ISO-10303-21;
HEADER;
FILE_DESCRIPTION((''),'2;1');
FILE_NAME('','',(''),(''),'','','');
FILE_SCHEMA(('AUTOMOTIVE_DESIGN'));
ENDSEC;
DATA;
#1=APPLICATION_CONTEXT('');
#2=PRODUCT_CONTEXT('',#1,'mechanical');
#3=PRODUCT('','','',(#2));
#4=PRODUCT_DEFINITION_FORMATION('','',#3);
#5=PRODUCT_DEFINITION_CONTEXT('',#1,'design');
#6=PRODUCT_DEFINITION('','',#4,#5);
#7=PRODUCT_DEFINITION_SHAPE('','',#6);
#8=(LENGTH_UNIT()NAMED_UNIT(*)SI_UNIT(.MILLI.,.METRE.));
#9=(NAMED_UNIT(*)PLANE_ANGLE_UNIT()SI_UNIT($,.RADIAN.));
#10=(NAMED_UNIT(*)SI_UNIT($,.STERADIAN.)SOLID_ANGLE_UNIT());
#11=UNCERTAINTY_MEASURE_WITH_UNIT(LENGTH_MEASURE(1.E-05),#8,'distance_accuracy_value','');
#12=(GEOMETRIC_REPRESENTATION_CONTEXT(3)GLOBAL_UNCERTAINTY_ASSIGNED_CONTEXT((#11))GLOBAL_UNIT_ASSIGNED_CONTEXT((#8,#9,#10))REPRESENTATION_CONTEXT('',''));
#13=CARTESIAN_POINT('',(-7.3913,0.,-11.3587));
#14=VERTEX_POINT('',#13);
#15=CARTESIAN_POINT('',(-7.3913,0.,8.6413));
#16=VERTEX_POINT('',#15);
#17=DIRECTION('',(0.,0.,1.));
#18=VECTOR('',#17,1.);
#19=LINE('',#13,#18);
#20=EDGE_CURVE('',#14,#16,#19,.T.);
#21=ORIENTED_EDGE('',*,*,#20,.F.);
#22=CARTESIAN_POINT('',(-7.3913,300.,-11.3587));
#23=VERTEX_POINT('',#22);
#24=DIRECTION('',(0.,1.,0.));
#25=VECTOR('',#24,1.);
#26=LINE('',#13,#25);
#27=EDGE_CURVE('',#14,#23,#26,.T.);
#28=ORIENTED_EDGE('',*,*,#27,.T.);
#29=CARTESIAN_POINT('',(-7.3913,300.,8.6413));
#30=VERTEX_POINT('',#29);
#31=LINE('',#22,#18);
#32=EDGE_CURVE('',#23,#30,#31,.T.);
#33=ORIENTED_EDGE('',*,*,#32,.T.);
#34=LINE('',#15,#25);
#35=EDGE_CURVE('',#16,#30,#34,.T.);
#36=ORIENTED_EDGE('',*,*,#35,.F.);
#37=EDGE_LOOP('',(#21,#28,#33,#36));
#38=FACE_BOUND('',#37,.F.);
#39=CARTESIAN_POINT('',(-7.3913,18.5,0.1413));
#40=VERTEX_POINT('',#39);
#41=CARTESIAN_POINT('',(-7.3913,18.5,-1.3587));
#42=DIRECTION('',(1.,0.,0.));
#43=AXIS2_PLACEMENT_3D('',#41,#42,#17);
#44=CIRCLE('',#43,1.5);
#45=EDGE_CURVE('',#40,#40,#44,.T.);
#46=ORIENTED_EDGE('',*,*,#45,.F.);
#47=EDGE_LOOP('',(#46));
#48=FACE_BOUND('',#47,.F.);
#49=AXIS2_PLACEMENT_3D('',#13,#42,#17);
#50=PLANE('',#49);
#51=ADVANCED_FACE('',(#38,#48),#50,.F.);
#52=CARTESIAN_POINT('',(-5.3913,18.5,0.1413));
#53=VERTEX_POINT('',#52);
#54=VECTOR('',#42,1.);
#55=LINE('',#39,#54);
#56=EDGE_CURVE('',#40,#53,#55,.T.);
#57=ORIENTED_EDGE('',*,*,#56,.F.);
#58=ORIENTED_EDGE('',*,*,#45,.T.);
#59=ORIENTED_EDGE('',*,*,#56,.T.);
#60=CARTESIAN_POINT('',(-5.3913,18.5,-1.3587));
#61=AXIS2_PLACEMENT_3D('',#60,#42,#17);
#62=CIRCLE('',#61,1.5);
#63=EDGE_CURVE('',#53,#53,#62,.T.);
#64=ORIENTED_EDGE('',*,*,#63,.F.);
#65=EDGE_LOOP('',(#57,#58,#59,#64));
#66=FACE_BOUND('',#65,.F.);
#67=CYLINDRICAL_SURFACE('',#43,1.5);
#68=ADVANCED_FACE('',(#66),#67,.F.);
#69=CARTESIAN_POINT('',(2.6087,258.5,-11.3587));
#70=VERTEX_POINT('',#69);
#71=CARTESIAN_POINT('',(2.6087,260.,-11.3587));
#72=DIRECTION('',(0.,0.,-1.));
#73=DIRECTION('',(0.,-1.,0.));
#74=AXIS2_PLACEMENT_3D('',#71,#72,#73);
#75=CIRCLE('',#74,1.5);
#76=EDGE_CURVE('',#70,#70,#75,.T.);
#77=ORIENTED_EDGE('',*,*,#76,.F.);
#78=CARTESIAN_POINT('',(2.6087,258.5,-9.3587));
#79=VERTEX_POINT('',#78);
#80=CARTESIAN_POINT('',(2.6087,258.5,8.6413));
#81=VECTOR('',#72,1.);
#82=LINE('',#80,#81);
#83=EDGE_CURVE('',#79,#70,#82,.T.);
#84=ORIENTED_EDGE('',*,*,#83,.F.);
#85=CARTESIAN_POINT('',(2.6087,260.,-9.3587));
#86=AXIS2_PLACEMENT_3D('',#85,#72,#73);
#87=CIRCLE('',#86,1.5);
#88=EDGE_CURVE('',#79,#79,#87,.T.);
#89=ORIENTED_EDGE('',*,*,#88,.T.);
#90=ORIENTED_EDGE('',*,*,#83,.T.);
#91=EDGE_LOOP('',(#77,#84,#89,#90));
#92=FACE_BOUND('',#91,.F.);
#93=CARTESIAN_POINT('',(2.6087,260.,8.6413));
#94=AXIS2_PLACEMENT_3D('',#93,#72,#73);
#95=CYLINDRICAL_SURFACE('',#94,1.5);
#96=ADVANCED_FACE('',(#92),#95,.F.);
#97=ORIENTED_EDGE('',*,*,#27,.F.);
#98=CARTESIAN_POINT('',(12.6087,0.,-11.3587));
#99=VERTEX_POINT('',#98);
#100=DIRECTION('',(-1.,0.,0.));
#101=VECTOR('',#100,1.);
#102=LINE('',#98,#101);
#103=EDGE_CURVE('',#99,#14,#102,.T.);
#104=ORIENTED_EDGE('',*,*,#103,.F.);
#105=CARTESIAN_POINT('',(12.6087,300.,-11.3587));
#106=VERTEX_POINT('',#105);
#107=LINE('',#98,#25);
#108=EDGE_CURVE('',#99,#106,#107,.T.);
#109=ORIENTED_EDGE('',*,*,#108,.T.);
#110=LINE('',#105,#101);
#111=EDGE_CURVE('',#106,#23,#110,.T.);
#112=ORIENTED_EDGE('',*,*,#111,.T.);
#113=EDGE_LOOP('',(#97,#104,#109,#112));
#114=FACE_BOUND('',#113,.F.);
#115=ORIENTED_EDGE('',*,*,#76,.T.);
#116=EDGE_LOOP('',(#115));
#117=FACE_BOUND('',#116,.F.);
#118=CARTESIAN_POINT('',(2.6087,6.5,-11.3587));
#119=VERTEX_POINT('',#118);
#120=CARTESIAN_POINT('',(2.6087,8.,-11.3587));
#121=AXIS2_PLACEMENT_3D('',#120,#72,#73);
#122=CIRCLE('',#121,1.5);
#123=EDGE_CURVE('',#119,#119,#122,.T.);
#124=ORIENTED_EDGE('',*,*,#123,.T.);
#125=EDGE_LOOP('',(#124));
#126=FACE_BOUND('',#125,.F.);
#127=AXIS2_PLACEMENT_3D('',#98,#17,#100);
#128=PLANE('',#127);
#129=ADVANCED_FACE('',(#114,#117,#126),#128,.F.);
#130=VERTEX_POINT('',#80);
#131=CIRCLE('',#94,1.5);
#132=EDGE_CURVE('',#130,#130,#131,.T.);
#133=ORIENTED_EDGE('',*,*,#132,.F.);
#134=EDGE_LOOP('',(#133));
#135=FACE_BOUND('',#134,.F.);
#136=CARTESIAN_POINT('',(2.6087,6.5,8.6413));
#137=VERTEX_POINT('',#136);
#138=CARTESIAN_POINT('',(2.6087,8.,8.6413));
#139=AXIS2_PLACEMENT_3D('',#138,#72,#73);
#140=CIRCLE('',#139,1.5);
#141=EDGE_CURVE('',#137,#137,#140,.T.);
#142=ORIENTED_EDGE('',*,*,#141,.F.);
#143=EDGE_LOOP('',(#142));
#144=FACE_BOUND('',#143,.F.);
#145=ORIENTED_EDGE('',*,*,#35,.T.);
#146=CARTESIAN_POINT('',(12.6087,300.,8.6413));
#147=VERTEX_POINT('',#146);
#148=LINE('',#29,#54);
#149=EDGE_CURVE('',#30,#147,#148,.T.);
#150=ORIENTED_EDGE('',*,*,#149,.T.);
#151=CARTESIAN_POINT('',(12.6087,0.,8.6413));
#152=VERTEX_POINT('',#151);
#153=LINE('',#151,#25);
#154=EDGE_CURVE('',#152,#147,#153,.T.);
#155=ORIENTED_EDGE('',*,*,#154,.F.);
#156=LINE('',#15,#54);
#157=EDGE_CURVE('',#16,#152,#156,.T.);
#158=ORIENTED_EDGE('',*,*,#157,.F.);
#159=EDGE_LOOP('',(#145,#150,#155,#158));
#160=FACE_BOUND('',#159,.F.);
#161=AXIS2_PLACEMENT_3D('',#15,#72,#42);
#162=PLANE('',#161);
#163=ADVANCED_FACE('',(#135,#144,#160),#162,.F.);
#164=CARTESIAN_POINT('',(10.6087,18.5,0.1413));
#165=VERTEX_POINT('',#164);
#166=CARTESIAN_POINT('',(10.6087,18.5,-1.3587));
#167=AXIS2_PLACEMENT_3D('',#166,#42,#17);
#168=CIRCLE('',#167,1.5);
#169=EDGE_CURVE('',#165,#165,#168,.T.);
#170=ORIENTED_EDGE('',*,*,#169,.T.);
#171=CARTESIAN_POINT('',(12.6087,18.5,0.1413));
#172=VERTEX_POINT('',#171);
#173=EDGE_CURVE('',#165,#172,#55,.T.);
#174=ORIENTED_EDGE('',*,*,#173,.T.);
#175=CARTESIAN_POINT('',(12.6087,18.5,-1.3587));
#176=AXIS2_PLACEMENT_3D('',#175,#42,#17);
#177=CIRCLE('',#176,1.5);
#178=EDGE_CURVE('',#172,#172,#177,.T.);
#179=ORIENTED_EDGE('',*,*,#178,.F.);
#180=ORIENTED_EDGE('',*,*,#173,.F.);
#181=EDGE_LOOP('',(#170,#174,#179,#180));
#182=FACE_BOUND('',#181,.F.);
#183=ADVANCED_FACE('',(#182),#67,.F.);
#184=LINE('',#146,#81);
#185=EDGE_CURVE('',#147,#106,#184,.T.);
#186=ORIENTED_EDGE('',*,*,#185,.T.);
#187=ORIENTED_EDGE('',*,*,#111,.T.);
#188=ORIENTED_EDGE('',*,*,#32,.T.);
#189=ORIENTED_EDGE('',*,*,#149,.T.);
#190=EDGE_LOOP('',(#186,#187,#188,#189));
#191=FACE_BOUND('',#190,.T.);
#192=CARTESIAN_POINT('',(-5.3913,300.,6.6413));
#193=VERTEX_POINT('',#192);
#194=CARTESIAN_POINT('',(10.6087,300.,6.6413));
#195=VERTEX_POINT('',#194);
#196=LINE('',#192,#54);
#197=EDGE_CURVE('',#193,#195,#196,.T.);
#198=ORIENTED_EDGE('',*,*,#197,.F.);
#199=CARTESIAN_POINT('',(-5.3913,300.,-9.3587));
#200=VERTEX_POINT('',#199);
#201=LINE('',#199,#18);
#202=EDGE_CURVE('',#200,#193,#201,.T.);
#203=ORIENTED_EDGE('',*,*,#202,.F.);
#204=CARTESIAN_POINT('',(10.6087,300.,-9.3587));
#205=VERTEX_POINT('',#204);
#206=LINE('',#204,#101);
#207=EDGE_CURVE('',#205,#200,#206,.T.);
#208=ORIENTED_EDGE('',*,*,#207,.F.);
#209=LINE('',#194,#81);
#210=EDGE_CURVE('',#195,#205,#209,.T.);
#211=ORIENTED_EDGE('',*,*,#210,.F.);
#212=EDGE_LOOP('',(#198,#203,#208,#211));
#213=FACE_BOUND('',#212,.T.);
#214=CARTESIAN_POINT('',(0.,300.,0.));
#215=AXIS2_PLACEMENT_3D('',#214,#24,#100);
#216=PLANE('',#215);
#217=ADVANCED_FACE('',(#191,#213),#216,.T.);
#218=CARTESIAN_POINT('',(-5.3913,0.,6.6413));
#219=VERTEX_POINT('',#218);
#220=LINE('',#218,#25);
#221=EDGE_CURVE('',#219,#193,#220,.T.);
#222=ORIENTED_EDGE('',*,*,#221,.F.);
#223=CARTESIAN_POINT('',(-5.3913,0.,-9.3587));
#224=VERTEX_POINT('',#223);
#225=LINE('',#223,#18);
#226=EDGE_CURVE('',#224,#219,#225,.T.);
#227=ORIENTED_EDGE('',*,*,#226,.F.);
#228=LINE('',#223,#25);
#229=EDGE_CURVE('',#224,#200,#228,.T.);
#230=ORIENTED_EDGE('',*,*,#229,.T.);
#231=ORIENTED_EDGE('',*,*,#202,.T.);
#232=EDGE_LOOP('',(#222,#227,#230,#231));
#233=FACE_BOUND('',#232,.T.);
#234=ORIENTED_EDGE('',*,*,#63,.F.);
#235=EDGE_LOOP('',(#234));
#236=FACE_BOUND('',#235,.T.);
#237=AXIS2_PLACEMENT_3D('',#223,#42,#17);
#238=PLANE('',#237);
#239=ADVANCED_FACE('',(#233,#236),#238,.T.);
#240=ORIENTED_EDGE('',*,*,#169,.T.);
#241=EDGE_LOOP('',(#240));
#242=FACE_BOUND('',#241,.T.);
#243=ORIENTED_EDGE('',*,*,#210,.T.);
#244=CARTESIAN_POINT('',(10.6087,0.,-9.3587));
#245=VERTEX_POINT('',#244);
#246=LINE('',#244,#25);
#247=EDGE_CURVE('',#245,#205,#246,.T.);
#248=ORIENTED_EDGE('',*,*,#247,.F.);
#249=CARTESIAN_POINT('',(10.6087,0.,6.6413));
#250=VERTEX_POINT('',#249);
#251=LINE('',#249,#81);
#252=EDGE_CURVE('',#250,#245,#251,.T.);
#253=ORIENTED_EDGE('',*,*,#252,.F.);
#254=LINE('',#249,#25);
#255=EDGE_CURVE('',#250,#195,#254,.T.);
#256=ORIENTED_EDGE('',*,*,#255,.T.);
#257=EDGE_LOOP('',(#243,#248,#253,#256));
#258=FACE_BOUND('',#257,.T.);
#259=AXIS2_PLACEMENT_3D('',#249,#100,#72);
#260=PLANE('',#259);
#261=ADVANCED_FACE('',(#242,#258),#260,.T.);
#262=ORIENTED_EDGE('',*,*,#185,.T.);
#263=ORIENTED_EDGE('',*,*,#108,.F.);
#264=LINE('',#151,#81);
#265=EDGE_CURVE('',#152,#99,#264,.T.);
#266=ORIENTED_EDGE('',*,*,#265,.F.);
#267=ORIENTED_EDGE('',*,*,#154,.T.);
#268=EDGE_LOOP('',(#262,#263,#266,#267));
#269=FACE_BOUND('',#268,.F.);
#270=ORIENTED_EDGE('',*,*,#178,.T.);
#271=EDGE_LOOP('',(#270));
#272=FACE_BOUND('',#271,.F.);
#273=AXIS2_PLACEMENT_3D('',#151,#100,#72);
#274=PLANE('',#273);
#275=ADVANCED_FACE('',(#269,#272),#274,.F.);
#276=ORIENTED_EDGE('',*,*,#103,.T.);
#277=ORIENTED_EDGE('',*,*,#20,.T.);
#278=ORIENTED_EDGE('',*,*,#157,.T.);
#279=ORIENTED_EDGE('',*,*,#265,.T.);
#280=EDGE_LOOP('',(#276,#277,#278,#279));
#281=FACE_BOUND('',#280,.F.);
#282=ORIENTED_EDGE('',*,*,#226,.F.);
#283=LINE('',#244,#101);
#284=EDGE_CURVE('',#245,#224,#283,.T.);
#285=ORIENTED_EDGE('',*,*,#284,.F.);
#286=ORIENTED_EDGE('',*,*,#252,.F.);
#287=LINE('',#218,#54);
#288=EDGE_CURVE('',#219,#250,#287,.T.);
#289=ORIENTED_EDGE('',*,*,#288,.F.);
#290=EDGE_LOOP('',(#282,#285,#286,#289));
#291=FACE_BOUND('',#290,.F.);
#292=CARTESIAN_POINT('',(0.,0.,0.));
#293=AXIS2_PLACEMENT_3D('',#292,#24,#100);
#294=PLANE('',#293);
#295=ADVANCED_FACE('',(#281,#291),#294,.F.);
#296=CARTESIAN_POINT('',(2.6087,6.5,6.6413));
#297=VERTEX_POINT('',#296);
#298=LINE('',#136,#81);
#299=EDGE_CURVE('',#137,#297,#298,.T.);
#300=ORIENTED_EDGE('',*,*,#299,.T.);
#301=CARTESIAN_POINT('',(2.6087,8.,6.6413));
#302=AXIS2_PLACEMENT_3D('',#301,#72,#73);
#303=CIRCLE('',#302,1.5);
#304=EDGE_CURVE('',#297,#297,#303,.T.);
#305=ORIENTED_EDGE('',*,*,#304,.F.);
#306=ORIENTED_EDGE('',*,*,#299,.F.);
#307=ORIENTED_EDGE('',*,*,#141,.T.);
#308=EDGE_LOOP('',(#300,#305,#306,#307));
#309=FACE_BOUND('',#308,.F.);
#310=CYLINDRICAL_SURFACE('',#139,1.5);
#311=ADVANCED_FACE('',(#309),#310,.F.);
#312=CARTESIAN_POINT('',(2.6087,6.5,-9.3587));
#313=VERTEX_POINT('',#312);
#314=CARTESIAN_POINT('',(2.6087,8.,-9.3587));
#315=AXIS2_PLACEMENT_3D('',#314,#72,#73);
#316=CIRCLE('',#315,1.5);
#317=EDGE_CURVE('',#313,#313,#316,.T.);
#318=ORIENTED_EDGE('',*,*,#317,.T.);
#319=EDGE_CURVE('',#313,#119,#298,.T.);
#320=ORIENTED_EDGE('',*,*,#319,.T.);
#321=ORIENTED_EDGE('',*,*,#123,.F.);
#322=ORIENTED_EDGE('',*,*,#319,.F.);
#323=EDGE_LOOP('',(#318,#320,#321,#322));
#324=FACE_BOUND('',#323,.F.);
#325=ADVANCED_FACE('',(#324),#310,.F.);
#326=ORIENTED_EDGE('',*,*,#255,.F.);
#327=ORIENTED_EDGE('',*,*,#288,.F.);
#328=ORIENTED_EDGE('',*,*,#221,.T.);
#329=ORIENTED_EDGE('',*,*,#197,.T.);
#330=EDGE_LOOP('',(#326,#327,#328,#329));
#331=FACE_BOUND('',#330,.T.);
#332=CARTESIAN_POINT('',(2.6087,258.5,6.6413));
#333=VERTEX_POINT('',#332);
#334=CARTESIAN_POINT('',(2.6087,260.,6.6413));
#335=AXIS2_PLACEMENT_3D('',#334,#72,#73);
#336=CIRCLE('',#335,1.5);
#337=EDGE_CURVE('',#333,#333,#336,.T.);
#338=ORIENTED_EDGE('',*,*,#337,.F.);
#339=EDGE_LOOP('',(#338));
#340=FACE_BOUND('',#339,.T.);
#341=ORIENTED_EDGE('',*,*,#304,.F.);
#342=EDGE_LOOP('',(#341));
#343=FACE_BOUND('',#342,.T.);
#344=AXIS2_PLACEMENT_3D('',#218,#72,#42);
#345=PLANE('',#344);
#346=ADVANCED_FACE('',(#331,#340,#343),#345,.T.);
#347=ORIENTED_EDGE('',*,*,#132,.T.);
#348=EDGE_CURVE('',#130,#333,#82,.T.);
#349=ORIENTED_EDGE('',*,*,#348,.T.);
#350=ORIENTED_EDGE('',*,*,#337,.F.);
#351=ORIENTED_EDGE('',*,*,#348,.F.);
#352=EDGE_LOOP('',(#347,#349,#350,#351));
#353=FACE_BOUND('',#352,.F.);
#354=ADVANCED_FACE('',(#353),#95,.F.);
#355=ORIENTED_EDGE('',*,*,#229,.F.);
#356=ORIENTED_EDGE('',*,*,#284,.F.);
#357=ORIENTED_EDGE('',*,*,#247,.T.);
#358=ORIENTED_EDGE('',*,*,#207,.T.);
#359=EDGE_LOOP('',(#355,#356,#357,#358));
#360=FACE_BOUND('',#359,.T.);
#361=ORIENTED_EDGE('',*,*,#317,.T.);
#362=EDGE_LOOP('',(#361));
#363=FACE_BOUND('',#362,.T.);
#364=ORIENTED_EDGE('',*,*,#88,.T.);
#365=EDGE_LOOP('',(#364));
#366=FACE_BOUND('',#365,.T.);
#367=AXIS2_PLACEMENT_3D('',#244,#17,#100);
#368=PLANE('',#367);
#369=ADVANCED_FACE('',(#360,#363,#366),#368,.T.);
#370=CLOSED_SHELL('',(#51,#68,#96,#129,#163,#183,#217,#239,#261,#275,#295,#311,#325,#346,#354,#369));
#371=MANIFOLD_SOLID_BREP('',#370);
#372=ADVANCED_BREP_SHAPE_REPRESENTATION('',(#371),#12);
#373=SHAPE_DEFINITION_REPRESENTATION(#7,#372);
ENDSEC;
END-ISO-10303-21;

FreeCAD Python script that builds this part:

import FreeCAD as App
import Part
import Sketcher

doc = App.newDocument("Part")
body = doc.addObject("PartDesign::Body", "Body")

# Sketch on XZ plane
sketch1 = body.newObject("Sketcher::SketchObject", "Sketch")
sketch1.AttachmentSupport = (doc.getObject("XZ_Plane"), [""])
sketch1.MapMode = "FlatFace"
sketch1.addGeometry([
    Part.LineSegment(App.Vector(-7, -11, 0), App.Vector(-7, 9, 0)),  # 0
    Part.LineSegment(App.Vector(-7, 9, 0), App.Vector(13, 9, 0)),  # 1
    Part.LineSegment(App.Vector(13, 9, 0), App.Vector(13, -11, 0)),  # 2
    Part.LineSegment(App.Vector(13, -11, 0), App.Vector(-7, -11, 0)),  # 3
    Part.LineSegment(App.Vector(11, 7, 0), App.Vector(-5, 7, 0)),  # 4
    Part.LineSegment(App.Vector(-5, 7, 0), App.Vector(-5, -9, 0)),  # 5
    Part.LineSegment(App.Vector(-5, -9, 0), App.Vector(11, -9, 0)),  # 6
    Part.LineSegment(App.Vector(11, -9, 0), App.Vector(11, 7, 0)),  # 7
], False)
sketch1.addConstraint([
    Sketcher.Constraint("Coincident", 0, 2, 1, 1),
    Sketcher.Constraint("Coincident", 1, 2, 2, 1),
    Sketcher.Constraint("Coincident", 2, 2, 3, 1),
    Sketcher.Constraint("Coincident", 3, 2, 0, 1),
    Sketcher.Constraint("Coincident", 4, 2, 5, 1),
    Sketcher.Constraint("Coincident", 5, 2, 6, 1),
    Sketcher.Constraint("Coincident", 6, 2, 7, 1),
    Sketcher.Constraint("Coincident", 7, 2, 4, 1),
    Sketcher.Constraint("Vertical", 0),
    Sketcher.Constraint("Horizontal", 1),
    Sketcher.Constraint("Vertical", 2),
    Sketcher.Constraint("Horizontal", 3),
    Sketcher.Constraint("Horizontal", 4),
    Sketcher.Constraint("Vertical", 5),
    Sketcher.Constraint("Horizontal", 6),
    Sketcher.Constraint("Vertical", 7),
    Sketcher.Constraint("Equal", 3, 0),
    Sketcher.Constraint("Equal", 6, 5),
    Sketcher.Constraint("DistanceX", 1, 1, 1, 2, 20.0),
    Sketcher.Constraint("DistanceX", 0, 2, 4, 2, 2.0),
    Sketcher.Constraint("DistanceY", 4, 2, 0, 2, 2.0),
    Sketcher.Constraint("DistanceY", 3, 2, 5, 2, 2.0),
    Sketcher.Constraint("DistanceX", 0, 2, -1, 1, 7.3913),
    Sketcher.Constraint("DistanceY", -1, 1, 0, 2, 8.6413),
])
pad1 = body.newObject("PartDesign::Pad", "Pad")
pad1.Profile = sketch1
pad1.Length = 300
pad1.Reversed = True

# Sketch on XY plane
sketch2 = body.newObject("Sketcher::SketchObject", "Sketch001")
sketch2.AttachmentSupport = (doc.getObject("XY_Plane"), [""])
sketch2.MapMode = "FlatFace"
sketch2.AttachmentOffset = App.Placement(App.Vector(0, 0, 8.6413), App.Rotation())
sketch2.addGeometry([
    Part.Circle(App.Vector(2.6, 8, 0), App.Vector(0, 0, 1), 1.5),
    Part.Circle(App.Vector(2.6, 260, 0), App.Vector(0, 0, 1), 1.5),
], False)
sketch2.addConstraint([
    Sketcher.Constraint("Equal", 0, 1),
    Sketcher.Constraint("Vertical", 0, 3, 1, 3),
    Sketcher.Constraint("Diameter", 0, 3.0),
    Sketcher.Constraint("DistanceY", -1, 1, 0, 3, 8.0),
    Sketcher.Constraint("DistanceY", -1, 1, 1, 3, 260.0),
    Sketcher.Constraint("DistanceX", -1, 1, 0, 3, 2.6087),
])
doc.recompute()
hole = body.newObject("PartDesign::Hole", "Hole")
hole.Profile = sketch2
hole.ThreadType = "None"
hole.Diameter = 3
hole.DepthType = "ThroughAll"

# Sketch on YZ plane
sketch3 = body.newObject("Sketcher::SketchObject", "Sketch002")
sketch3.AttachmentSupport = (doc.getObject("YZ_Plane"), [""])
sketch3.MapMode = "FlatFace"
sketch3.AttachmentOffset = App.Placement(App.Vector(0, 0, -7.3913), App.Rotation())
sketch3.addGeometry(Part.Circle(App.Vector(18.5, -1.4, 0), App.Vector(0, 0, 1), 1.5), False)
sketch3.addConstraint([
    Sketcher.Constraint("Diameter", 0, 3.0),
    Sketcher.Constraint("DistanceX", -1, 1, 0, 3, 18.5),
    Sketcher.Constraint("DistanceY", 0, 3, -1, 1, 1.3587),
])
doc.recompute()
hole2 = body.newObject("PartDesign::Hole", "Hole001")
hole2.Profile = sketch3
hole2.ThreadType = "None"
hole2.Diameter = 3
hole2.DepthType = "ThroughAll"
hole2.Reversed = True

doc.recompute()
